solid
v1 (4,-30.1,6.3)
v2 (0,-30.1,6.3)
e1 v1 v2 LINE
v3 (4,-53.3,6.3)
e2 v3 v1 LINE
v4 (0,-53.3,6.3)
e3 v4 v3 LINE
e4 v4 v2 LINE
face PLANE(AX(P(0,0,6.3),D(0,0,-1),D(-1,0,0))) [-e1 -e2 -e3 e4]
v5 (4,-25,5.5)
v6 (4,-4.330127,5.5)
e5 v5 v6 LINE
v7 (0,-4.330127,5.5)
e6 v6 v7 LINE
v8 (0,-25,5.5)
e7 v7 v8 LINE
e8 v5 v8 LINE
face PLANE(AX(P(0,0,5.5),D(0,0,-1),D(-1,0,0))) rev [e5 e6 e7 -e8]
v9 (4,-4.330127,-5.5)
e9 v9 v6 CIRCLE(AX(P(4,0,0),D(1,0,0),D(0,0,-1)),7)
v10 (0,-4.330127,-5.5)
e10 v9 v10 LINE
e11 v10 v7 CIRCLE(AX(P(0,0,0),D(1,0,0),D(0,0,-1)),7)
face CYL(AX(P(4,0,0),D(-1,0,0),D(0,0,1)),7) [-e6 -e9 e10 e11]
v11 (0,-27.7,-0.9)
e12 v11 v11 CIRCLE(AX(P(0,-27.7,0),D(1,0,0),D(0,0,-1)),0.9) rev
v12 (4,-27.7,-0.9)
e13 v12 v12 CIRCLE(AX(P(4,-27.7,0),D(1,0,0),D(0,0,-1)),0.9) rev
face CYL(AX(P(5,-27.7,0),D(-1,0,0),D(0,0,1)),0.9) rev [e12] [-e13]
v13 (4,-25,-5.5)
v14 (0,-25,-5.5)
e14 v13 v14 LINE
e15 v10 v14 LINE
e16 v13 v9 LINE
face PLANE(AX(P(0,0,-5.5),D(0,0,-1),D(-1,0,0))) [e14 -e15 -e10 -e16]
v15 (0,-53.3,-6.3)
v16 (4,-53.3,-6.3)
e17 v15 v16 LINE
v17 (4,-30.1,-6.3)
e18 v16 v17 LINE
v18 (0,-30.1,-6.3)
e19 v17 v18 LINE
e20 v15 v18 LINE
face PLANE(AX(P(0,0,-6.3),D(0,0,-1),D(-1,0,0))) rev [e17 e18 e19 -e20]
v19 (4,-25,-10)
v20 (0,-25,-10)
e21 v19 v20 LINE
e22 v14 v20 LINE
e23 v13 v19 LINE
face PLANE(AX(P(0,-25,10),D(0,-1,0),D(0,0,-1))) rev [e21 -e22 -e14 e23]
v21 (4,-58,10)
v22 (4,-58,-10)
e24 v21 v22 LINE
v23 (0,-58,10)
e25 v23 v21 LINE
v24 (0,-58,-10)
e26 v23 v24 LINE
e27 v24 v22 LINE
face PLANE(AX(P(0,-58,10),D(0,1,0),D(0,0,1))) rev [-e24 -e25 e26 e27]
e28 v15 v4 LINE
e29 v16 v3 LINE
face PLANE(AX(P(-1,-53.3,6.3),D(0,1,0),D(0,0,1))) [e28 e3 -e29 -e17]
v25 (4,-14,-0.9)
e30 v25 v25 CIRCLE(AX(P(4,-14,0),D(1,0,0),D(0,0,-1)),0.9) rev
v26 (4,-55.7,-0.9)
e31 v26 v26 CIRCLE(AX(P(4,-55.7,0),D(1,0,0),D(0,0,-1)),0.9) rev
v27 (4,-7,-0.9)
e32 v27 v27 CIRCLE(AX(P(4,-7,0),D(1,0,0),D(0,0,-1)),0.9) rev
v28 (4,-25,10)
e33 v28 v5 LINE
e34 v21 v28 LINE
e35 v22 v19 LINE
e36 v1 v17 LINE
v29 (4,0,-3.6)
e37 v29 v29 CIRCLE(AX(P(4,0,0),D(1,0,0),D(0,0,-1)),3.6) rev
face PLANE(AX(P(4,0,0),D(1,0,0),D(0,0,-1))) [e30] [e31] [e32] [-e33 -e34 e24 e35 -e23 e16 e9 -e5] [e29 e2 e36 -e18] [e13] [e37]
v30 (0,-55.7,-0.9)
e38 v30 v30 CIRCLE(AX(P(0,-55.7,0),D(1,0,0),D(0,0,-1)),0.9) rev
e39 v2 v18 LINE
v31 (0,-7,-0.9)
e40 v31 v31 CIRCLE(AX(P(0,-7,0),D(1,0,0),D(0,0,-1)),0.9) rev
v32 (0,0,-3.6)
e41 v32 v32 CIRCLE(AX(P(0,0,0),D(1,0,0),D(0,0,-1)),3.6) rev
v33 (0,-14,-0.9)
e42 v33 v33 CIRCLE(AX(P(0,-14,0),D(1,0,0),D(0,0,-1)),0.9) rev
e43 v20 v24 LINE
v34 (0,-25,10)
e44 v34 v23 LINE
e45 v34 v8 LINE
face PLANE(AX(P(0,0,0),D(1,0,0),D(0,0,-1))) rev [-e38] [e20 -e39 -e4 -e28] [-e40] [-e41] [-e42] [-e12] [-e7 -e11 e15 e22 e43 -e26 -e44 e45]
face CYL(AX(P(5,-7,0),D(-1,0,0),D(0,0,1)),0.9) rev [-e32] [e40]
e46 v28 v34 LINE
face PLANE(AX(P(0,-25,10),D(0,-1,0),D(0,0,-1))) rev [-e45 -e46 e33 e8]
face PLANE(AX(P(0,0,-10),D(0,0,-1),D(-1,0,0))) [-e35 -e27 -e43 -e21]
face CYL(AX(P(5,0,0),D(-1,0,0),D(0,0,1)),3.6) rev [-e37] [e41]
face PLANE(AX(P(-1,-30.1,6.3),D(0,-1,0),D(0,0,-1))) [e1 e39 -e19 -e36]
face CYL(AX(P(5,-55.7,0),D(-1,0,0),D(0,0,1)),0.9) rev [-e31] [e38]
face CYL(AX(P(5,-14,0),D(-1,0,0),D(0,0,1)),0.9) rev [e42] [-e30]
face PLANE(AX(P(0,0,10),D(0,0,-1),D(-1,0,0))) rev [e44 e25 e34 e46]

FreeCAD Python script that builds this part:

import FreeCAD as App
import Part
import Sketcher
from FreeCAD import Vector


def add_polygon(sketch, points):
    """Adds a closed chain of lines whose ends are joined by coincident constraints."""
    first, n = sketch.GeometryCount, len(points)
    for a, b in zip(points, points[1:] + points[:1]):
        sketch.addGeometry(Part.LineSegment(App.Vector(*a, 0), App.Vector(*b, 0)), False)
    for i in range(n):
        sketch.addConstraint(Sketcher.Constraint("Coincident", first + i, 2, first + (i + 1) % n, 1))

doc = App.newDocument("Part")
body = doc.addObject("PartDesign::Body", "Body")

sketch1 = body.newObject("Sketcher::SketchObject", "Sketch")
sketch1.AttachmentSupport = (doc.getObject("YZ_Plane"), [""])
sketch1.MapMode = "FlatFace"
sketch1.addGeometry(Part.Circle(Vector(0, 0, 0), Vector(0, 0, 1), 7), False)
sketch1.addConstraint([
    Sketcher.Constraint("Coincident", 0, 3, -1, 1),
    Sketcher.Constraint("Diameter", 0, 14.0),
])
pad1 = body.newObject("PartDesign::Pad", "Pad")
pad1.Profile = sketch1
pad1.Length = 4

sketch2 = body.newObject("Sketcher::SketchObject", "Sketch001")
sketch2.AttachmentSupport = (doc.getObject("XY_Plane"), [""])
sketch2.MapMode = "FlatFace"
sketch2.AttachmentOffset = App.Placement(Vector(0, 0, -5.5), App.Rotation())
add_polygon(sketch2, [(0, 0), (0, -36), (4, -36), (4, 0)])
sketch2.addConstraint([
    Sketcher.Constraint("Vertical", 0),
    Sketcher.Constraint("Horizontal", 1),
    Sketcher.Constraint("Vertical", 2),
    Sketcher.Constraint("Horizontal", 3),
    Sketcher.Constraint("Coincident", 3, 2, -1, 1),
    Sketcher.Constraint("DistanceX", 1, 1, 1, 2, 4.0),
    Sketcher.Constraint("DistanceY", 0, 2, 0, 1, 36.0),
])
pad2 = body.newObject("PartDesign::Pad", "Pad001")
pad2.Profile = sketch2
pad2.Length = 11

sketch3 = body.newObject("Sketcher::SketchObject", "Sketch002")
sketch3.AttachmentSupport = (doc.getObject("XY_Plane"), [""])
sketch3.MapMode = "FlatFace"
sketch3.AttachmentOffset = App.Placement(Vector(0, 0, -10), App.Rotation())
add_polygon(sketch3, [(0, -25), (0, -58), (4, -58), (4, -25)])
sketch3.addConstraint([
    Sketcher.Constraint("Vertical", 0),
    Sketcher.Constraint("Horizontal", 1),
    Sketcher.Constraint("Vertical", 2),
    Sketcher.Constraint("Horizontal", 3),
    Sketcher.Constraint("PointOnObject", 0, 2, -2),
    Sketcher.Constraint("DistanceX", 1, 1, 1, 2, 4.0),
    Sketcher.Constraint("DistanceY", 0, 2, 0, 1, 33.0),
    Sketcher.Constraint("DistanceY", 0, 2, -1, 1, 58.0),
])
pad3 = body.newObject("PartDesign::Pad", "Pad002")
pad3.Profile = sketch3
pad3.Length = 20
body2 = doc.addObject("PartDesign::Body", "Body001")

sketch4 = body2.newObject("Sketcher::SketchObject", "Sketch003")
sketch4.AttachmentSupport = (doc.getObject("YZ_Plane001"), [""])
sketch4.MapMode = "FlatFace"
sketch4.AttachmentOffset = App.Placement(Vector(0, 0, -1), App.Rotation())
sketch4.addGeometry(Part.Circle(Vector(0, 0, 0), Vector(0, 0, 1), 3.6), False)
sketch4.addConstraint([
    Sketcher.Constraint("Coincident", 0, 3, -1, 1),
    Sketcher.Constraint("Diameter", 0, 7.2),
])
pad4 = body2.newObject("PartDesign::Pad", "Pad003")
pad4.Profile = sketch4
pad4.Length = 6
doc.recompute()

boolean = body.newObject("PartDesign::Boolean", "Boolean")
boolean.Type = "Cut"
boolean.addObjects([body2])
body3 = doc.addObject("PartDesign::Body", "Body002")

sketch5 = body3.newObject("Sketcher::SketchObject", "Sketch004")
sketch5.AttachmentSupport = (doc.getObject("YZ_Plane002"), [""])
sketch5.MapMode = "FlatFace"
sketch5.AttachmentOffset = App.Placement(Vector(0, 0, -1), App.Rotation())
sketch5.addGeometry(Part.Circle(Vector(-7, 0, 0), Vector(0, 0, 1), 0.9), False)
sketch5.addConstraint([
    Sketcher.Constraint("PointOnObject", 0, 3, -1),
    Sketcher.Constraint("Diameter", 0, 1.8),
    Sketcher.Constraint("DistanceX", 0, 3, -1, 1, 7.0),
])
pad5 = body3.newObject("PartDesign::Pad", "Pad004")
pad5.Profile = sketch5
pad5.Length = 6
doc.recompute()

boolean2 = body.newObject("PartDesign::Boolean", "Boolean001")
boolean2.Type = "Cut"
boolean2.addObjects([body3])
body4 = doc.addObject("PartDesign::Body", "Body003")

sketch6 = body4.newObject("Sketcher::SketchObject", "Sketch005")
sketch6.AttachmentSupport = (doc.getObject("YZ_Plane003"), [""])
sketch6.MapMode = "FlatFace"
sketch6.AttachmentOffset = App.Placement(Vector(0, 0, -1), App.Rotation())
sketch6.addGeometry(Part.Circle(Vector(-14, 0, 0), Vector(0, 0, 1), 0.9), False)
sketch6.addConstraint([
    Sketcher.Constraint("PointOnObject", 0, 3, -1),
    Sketcher.Constraint("Diameter", 0, 1.8),
    Sketcher.Constraint("DistanceX", 0, 3, -1, 1, 14.0),
])
pad6 = body4.newObject("PartDesign::Pad", "Pad005")
pad6.Profile = sketch6
pad6.Length = 6
doc.recompute()

boolean3 = body.newObject("PartDesign::Boolean", "Boolean002")
boolean3.Type = "Cut"
boolean3.addObjects([body4])
body5 = doc.addObject("PartDesign::Body", "Body004")

sketch7 = body5.newObject("Sketcher::SketchObject", "Sketch006")
sketch7.AttachmentSupport = (doc.getObject("XY_Plane004"), [""])
sketch7.MapMode = "FlatFace"
sketch7.AttachmentOffset = App.Placement(Vector(0, 0, -6.3), App.Rotation())
add_polygon(sketch7, [(-1, -30), (-1, -53), (5, -53), (5, -30)])
sketch7.addConstraint([
    Sketcher.Constraint("Vertical", 0),
    Sketcher.Constraint("Horizontal", 1),
    Sketcher.Constraint("Vertical", 2),
    Sketcher.Constraint("Horizontal", 3),
    Sketcher.Constraint("DistanceX", 1, 1, 1, 2, 6.0),
    Sketcher.Constraint("DistanceY", 0, 2, 0, 1, 23.2),
    Sketcher.Constraint("DistanceX", 0, 2, -1, 1, 1.0),
    Sketcher.Constraint("DistanceY", 0, 2, -1, 1, 53.3),
])
pad7 = body5.newObject("PartDesign::Pad", "Pad006")
pad7.Profile = sketch7
pad7.Length = 12.6
doc.recompute()

boolean4 = body.newObject("PartDesign::Boolean", "Boolean003")
boolean4.Type = "Cut"
boolean4.addObjects([body5])
body6 = doc.addObject("PartDesign::Body", "Body005")

sketch8 = body6.newObject("Sketcher::SketchObject", "Sketch007")
sketch8.AttachmentSupport = (doc.getObject("YZ_Plane005"), [""])
sketch8.MapMode = "FlatFace"
sketch8.AttachmentOffset = App.Placement(Vector(0, 0, -1), App.Rotation())
sketch8.addGeometry(Part.Circle(Vector(-27.7, 0, 0), Vector(0, 0, 1), 0.9), False)
sketch8.addConstraint([
    Sketcher.Constraint("PointOnObject", 0, 3, -1),
    Sketcher.Constraint("Diameter", 0, 1.8),
    Sketcher.Constraint("DistanceX", 0, 3, -1, 1, 27.7),
])
pad8 = body6.newObject("PartDesign::Pad", "Pad007")
pad8.Profile = sketch8
pad8.Length = 6
doc.recompute()

boolean5 = body.newObject("PartDesign::Boolean", "Boolean004")
boolean5.Type = "Cut"
boolean5.addObjects([body6])
body7 = doc.addObject("PartDesign::Body", "Body006")

sketch9 = body7.newObject("Sketcher::SketchObject", "Sketch008")
sketch9.AttachmentSupport = (doc.getObject("YZ_Plane006"), [""])
sketch9.MapMode = "FlatFace"
sketch9.AttachmentOffset = App.Placement(Vector(0, 0, -1), App.Rotation())
sketch9.addGeometry(Part.Circle(Vector(-55.7, 0, 0), Vector(0, 0, 1), 0.9), False)
sketch9.addConstraint([
    Sketcher.Constraint("PointOnObject", 0, 3, -1),
    Sketcher.Constraint("Diameter", 0, 1.8),
    Sketcher.Constraint("DistanceX", 0, 3, -1, 1, 55.7),
])
pad9 = body7.newObject("PartDesign::Pad", "Pad008")
pad9.Profile = sketch9
pad9.Length = 6
doc.recompute()

boolean6 = body.newObject("PartDesign::Boolean", "Boolean005")
boolean6.Type = "Cut"
boolean6.addObjects([body7])

doc.recompute()
